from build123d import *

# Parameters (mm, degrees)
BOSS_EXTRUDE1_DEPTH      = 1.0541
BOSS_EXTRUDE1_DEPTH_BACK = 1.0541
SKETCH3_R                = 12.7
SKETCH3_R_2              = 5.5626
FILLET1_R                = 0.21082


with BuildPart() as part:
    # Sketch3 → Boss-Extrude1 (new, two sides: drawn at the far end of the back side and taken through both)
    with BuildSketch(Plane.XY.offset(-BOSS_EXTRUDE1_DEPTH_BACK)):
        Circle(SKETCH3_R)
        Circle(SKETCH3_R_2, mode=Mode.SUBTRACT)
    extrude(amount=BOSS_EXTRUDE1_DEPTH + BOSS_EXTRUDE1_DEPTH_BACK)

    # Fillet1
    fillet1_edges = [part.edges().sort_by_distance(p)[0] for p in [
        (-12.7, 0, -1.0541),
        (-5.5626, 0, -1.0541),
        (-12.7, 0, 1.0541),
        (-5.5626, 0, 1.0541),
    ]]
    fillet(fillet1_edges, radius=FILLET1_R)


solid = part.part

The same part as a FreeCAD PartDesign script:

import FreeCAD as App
import Part
import Sketcher

V = App.Vector
Q = App.Units.Quantity


def edges_at(feature, points):
    """Names of the edges that pass closest to the given points."""
    edges = feature.Shape.Edges
    near = lambda p: min(range(len(edges)), key=lambda i: edges[i].distToShape(Part.Vertex(*p))[0])
    return sorted({f"Edge{near(p) + 1}" for p in points})

doc = App.newDocument("Part")
params = doc.addObject("Spreadsheet::Sheet", "Params")
for row, (alias, value) in enumerate([
    ("sketch1_diameter", "1 in"),
    ("sketch1_diameter2", "0.438 in"),
    ("pad1_length", "0.0415 in"),
    ("pad1_length2", "0.0415 in"),
    ("fillet_radius", "0.0083 in"),
], start=1):
    params.set(f"A{row}", alias)
    params.set(f"B{row}", "=" + value)
    params.setAlias(f"B{row}", alias)

body = doc.addObject("PartDesign::Body", "Body")

# Sketch on XY plane
sketch1 = doc.addObject("Sketcher::SketchObject", "Sketch")
body.addObject(sketch1)
sketch1.AttachmentSupport = (doc.XY_Plane, [""])
sketch1.MapMode = "FlatFace"
sketch1.addGeometry(Part.Circle(V(0, 0, 0), V(0, 0, 1), 13), False)
sketch1.addGeometry(Part.Circle(V(0, 0, 0), V(0, 0, 1), 6), False)
sketch1.addConstraint(Sketcher.Constraint("Coincident", 0, 3, -1, 1))
sketch1.addConstraint(Sketcher.Constraint("Coincident", 1, 3, -1, 1))
sketch1.addConstraint(Sketcher.Constraint("Diameter", 0, Q("1 in")))
sketch1.addConstraint(Sketcher.Constraint("Diameter", 1, Q("0.438 in")))
sketch1.setExpression("Constraints[2]", "Params.sketch1_diameter")
sketch1.setExpression("Constraints[3]", "Params.sketch1_diameter2")
pad1 = doc.addObject("PartDesign::Pad", "Pad")
body.addObject(pad1)
pad1.Profile = sketch1
pad1.Type = "TwoLengths"
pad1.setExpression("Length", "Params.pad1_length")
pad1.setExpression("Length2", "Params.pad1_length2")
doc.recompute()

fillet = doc.addObject("PartDesign::Fillet", "Fillet")
body.addObject(fillet)
fillet.Base = (pad1, edges_at(pad1, [
    (-12.7, 0, -1.054),
    (-5.563, 0, -1.054),
    (-12.7, 0, 1.054),
    (-5.563, 0, 1.054),
]))
fillet.setExpression("Radius", "Params.fillet_radius")

doc.recompute()
